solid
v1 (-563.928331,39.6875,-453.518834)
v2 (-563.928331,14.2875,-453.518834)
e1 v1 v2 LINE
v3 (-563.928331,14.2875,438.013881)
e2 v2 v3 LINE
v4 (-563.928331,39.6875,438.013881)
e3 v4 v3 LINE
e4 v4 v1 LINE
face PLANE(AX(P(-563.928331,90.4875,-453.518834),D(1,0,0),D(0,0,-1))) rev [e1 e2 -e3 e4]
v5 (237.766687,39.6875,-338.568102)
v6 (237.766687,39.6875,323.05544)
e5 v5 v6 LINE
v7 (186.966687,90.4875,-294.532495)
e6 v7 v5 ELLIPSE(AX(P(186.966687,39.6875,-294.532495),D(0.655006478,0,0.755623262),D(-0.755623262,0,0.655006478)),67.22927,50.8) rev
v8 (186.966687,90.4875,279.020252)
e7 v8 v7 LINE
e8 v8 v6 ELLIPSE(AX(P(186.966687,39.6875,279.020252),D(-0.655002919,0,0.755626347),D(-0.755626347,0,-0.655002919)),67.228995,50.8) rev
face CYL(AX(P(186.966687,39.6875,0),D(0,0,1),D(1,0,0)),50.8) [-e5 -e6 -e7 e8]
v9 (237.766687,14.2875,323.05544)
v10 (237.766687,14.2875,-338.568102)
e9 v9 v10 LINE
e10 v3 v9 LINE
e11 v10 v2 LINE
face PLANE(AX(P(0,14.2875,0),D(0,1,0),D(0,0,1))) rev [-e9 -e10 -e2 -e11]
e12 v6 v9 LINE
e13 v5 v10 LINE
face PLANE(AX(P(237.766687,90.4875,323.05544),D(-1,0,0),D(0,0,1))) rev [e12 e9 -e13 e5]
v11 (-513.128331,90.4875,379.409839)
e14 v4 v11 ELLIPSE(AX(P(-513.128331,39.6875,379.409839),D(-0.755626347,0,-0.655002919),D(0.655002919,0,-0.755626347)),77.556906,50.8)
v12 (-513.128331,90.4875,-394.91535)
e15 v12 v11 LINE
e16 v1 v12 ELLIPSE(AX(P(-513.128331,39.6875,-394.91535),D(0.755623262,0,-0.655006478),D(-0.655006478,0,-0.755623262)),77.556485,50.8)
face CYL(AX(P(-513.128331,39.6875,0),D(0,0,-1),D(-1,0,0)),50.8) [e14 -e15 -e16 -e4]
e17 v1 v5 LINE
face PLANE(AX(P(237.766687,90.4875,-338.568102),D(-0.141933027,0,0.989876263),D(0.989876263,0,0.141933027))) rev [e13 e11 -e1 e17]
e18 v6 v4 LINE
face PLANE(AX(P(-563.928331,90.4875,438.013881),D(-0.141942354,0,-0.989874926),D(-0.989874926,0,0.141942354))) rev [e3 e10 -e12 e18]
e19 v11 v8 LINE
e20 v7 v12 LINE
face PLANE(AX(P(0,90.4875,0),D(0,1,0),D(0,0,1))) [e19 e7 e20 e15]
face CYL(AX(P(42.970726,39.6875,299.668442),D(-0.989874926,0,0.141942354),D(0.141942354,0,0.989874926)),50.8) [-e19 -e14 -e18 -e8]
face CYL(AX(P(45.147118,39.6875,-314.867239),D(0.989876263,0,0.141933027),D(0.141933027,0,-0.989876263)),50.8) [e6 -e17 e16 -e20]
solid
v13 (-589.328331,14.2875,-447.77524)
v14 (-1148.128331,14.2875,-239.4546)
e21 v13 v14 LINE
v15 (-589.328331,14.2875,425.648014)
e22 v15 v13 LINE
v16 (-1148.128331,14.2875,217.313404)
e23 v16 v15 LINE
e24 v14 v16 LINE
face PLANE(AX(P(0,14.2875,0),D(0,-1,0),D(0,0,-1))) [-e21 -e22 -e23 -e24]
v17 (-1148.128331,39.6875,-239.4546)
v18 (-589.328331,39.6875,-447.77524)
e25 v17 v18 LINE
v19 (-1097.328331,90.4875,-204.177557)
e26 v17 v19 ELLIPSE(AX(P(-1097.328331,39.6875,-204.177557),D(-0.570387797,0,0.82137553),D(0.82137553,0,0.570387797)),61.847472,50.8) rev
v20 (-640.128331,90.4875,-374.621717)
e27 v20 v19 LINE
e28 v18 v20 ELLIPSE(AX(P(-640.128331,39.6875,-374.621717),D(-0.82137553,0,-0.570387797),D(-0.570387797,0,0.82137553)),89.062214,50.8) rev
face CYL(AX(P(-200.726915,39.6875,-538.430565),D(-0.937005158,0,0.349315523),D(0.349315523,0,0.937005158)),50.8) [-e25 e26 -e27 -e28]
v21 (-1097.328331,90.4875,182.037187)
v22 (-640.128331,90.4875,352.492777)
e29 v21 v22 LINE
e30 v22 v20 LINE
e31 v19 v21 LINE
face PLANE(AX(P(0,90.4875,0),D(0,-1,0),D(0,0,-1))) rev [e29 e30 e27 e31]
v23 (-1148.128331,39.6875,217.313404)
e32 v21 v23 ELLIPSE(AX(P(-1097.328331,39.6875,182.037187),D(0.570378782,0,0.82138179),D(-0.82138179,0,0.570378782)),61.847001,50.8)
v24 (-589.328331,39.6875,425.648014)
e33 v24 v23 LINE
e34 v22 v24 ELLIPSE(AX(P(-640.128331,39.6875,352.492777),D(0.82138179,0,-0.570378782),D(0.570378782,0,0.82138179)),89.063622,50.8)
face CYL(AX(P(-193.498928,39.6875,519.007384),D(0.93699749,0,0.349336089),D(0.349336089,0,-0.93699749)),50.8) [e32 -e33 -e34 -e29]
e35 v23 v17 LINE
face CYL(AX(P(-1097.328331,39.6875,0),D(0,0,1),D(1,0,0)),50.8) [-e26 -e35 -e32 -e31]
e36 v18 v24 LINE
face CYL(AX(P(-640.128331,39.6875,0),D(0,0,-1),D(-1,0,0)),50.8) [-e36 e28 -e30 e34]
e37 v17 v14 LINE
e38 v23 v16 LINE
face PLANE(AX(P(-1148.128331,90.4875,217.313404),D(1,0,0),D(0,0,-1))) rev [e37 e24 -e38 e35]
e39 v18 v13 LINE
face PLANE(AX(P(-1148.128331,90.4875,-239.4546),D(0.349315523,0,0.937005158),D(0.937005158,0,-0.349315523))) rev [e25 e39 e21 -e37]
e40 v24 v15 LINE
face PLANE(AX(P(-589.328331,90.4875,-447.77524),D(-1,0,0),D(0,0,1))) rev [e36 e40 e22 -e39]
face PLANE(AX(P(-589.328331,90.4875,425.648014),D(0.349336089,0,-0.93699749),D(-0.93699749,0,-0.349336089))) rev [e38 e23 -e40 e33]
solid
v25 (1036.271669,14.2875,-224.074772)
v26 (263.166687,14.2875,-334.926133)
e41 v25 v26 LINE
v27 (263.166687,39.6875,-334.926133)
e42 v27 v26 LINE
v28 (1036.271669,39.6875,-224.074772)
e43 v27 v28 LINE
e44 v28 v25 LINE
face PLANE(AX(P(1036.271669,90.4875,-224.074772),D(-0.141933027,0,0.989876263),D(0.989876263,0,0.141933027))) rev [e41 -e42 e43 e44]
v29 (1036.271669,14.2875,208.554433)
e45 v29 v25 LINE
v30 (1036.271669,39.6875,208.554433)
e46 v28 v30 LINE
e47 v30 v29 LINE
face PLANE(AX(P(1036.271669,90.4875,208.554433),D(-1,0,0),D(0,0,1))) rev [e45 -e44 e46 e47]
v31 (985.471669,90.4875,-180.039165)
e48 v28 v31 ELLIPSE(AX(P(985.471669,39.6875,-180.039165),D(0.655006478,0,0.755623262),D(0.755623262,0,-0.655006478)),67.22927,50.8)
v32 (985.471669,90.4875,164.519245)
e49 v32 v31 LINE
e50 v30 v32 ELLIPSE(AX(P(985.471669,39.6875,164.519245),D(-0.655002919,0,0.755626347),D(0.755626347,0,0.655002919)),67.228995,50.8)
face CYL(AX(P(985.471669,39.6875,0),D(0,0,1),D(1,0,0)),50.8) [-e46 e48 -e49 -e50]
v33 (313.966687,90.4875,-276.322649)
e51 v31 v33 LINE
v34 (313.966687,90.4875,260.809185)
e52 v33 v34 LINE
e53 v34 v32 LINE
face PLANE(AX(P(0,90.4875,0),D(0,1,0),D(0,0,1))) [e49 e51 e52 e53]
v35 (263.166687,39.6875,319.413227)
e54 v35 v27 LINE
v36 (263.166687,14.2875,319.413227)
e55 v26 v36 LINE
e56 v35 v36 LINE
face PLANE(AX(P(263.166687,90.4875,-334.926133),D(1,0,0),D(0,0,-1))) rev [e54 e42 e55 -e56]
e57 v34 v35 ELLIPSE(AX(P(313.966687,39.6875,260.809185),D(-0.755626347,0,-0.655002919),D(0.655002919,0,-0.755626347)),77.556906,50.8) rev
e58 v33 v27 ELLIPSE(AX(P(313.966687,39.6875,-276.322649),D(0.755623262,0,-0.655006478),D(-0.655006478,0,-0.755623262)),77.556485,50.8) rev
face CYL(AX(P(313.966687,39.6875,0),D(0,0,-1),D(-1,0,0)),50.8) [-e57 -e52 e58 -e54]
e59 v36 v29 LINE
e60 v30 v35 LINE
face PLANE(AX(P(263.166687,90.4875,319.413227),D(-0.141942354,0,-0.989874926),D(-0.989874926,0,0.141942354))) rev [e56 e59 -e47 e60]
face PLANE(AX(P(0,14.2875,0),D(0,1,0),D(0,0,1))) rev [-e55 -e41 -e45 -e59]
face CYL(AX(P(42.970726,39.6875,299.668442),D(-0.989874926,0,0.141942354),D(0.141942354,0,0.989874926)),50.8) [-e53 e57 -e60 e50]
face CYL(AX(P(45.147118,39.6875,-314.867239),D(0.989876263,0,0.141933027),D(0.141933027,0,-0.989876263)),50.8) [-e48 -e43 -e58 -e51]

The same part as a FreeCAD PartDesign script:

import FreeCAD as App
import Part
import Sketcher
from FreeCAD import Vector
Q = App.Units.Quantity


def edges_at(feature, points):
    """Names of the edges that pass closest to the given points."""
    edges = feature.Shape.Edges
    near = lambda p: min(range(len(edges)), key=lambda i: edges[i].distToShape(Part.Vertex(*p))[0])
    return sorted({f"Edge{near(p) + 1}" for p in points})

doc = App.newDocument("Part")
params = doc.addObject("Spreadsheet::Sheet", "Params")
for row, (alias, value) in enumerate([
    ("pad1_length", "3 in"),
    ("fillet_radius", "2 in"),
    ("pad2_length", "3 in"),
    ("fillet2_radius", "2 in"),
    ("pad3_length", "3 in"),
    ("fillet3_radius", "2 in"),
], start=1):
    params.set(f"A{row}", alias)
    params.set(f"B{row}", "=" + value)
    params.setAlias(f"B{row}", alias)

body = doc.addObject("PartDesign::Body", "Body")

# Sketch on XZ plane
sketch1 = doc.addObject("Sketcher::SketchObject", "Sketch")
body.addObject(sketch1)
sketch1.AttachmentSupport = (doc.XZ_Plane, [""])
sketch1.MapMode = "FlatFace"
sketch1.AttachmentOffset = App.Placement(Vector(0, 0, -0.5625 * 25.4), App.Rotation())
sketch1.addGeometry(Part.LineSegment(Vector(-589.328331, -447.77524, 0), Vector(-1148.128331, -239.4546, 0)), False)
sketch1.addGeometry(Part.LineSegment(Vector(-1148.128331, -239.4546, 0), Vector(-1148.128331, 217.313404, 0)), False)
sketch1.addGeometry(Part.LineSegment(Vector(-1148.128331, 217.313404, 0), Vector(-589.328331, 425.648014, 0)), False)
sketch1.addGeometry(Part.LineSegment(Vector(-589.328331, 425.648014, 0), Vector(-589.328331, -447.77524, 0)), False)
sketch1.addConstraint(Sketcher.Constraint("Coincident", 0, 2, 1, 1))
sketch1.addConstraint(Sketcher.Constraint("Coincident", 1, 2, 2, 1))
sketch1.addConstraint(Sketcher.Constraint("Coincident", 2, 2, 3, 1))
sketch1.addConstraint(Sketcher.Constraint("Coincident", 3, 2, 0, 1))
sketch1.addConstraint(Sketcher.Constraint("Vertical", 1))
sketch1.addConstraint(Sketcher.Constraint("Vertical", 3))
sketch1.addConstraint(Sketcher.Constraint("DistanceX", 1, 2, 2, 2, Q("22 in")))
sketch1.addConstraint(Sketcher.Constraint("DistanceY", 3, 2, 0, 2, Q("8.2016 in")))
sketch1.addConstraint(Sketcher.Constraint("DistanceY", 0, 2, -1, 1, 239.4546))
sketch1.addConstraint(Sketcher.Constraint("DistanceY", 1, 1, 1, 2, 456.768004))
sketch1.addConstraint(Sketcher.Constraint("DistanceY", 3, 2, 3, 1, 873.423254))
sketch1.addConstraint(Sketcher.Constraint("DistanceX", 0, 2, -1, 1, 1148.128331))
pad1 = doc.addObject("PartDesign::Pad", "Pad")
body.addObject(pad1)
pad1.Profile = sketch1
pad1.setExpression("Length", "Params.pad1_length")
pad1.Reversed = True
doc.recompute()

fillet = doc.addObject("PartDesign::Fillet", "Fillet")
body.addObject(fillet)
fillet.Base = (pad1, edges_at(pad1, [
    (-589.328, 90.487, -11.064),
    (-868.728, 90.487, -343.615),
    (-1148.128, 90.487, -11.071),
    (-868.728, 90.487, 321.481),
]))
fillet.setExpression("Radius", "Params.fillet_radius")
body2 = doc.addObject("PartDesign::Body", "Body001")

# Sketch on XZ plane
sketch2 = doc.addObject("Sketcher::SketchObject", "Sketch001")
body2.addObject(sketch2)
sketch2.AttachmentSupport = (doc.getObject("XZ_Plane001"), [""])
sketch2.MapMode = "FlatFace"
sketch2.AttachmentOffset = App.Placement(Vector(0, 0, -0.5625 * 25.4), App.Rotation())
sketch2.addGeometry(Part.LineSegment(Vector(-563.928331, -453.518834, 0), Vector(-563.928331, 438.013881, 0)), False)
sketch2.addGeometry(Part.LineSegment(Vector(-563.928331, 438.013881, 0), Vector(237.766687, 323.05544, 0)), False)
sketch2.addGeometry(Part.LineSegment(Vector(237.766687, 323.05544, 0), Vector(237.766687, -338.568102, 0)), False)
sketch2.addGeometry(Part.LineSegment(Vector(237.766687, -338.568102, 0), Vector(-563.928331, -453.518834, 0)), False)
sketch2.addConstraint(Sketcher.Constraint("Coincident", 0, 2, 1, 1))
sketch2.addConstraint(Sketcher.Constraint("Coincident", 1, 2, 2, 1))
sketch2.addConstraint(Sketcher.Constraint("Coincident", 2, 2, 3, 1))
sketch2.addConstraint(Sketcher.Constraint("Coincident", 3, 2, 0, 1))
sketch2.addConstraint(Sketcher.Constraint("Vertical", 0))
sketch2.addConstraint(Sketcher.Constraint("Vertical", 2))
sketch2.addConstraint(Sketcher.Constraint("DistanceY", 0, 1, 0, 2, 891.532714))
sketch2.addConstraint(Sketcher.Constraint("DistanceY", 2, 2, 2, 1, 661.623542))
sketch2.addConstraint(Sketcher.Constraint("DistanceX", 0, 2, -1, 1, 563.928331))
sketch2.addConstraint(Sketcher.Constraint("DistanceY", -1, 1, 0, 2, 438.013881))
sketch2.addConstraint(Sketcher.Constraint("DistanceY", -1, 1, 1, 2, 323.05544))
sketch2.addConstraint(Sketcher.Constraint("Distance", 1, 809.895268))
pad2 = doc.addObject("PartDesign::Pad", "Pad001")
body2.addObject(pad2)
pad2.Profile = sketch2
pad2.setExpression("Length", "Params.pad2_length")
pad2.Reversed = True
doc.recompute()

fillet2 = doc.addObject("PartDesign::Fillet", "Fillet001")
body2.addObject(fillet2)
fillet2.Base = (pad2, edges_at(pad2, [
    (-163.081, 90.487, 380.535),
    (237.767, 90.487, -7.756),
    (-163.081, 90.487, -396.043),
    (-563.928, 90.487, -7.752),
]))
fillet2.setExpression("Radius", "Params.fillet2_radius")
body3 = doc.addObject("PartDesign::Body", "Body002")

# Sketch on XZ plane
sketch3 = doc.addObject("Sketcher::SketchObject", "Sketch002")
body3.addObject(sketch3)
sketch3.AttachmentSupport = (doc.getObject("XZ_Plane002"), [""])
sketch3.MapMode = "FlatFace"
sketch3.AttachmentOffset = App.Placement(Vector(0, 0, -0.5625 * 25.4), App.Rotation())
sketch3.addGeometry(Part.LineSegment(Vector(263.166687, -334.926133, 0), Vector(263.166687, 319.413227, 0)), False)
sketch3.addGeometry(Part.LineSegment(Vector(263.166687, 319.413227, 0), Vector(1036.271669, 208.554433, 0)), False)
sketch3.addGeometry(Part.LineSegment(Vector(1036.271669, 208.554433, 0), Vector(1036.271669, -224.074772, 0)), False)
sketch3.addGeometry(Part.LineSegment(Vector(1036.271669, -224.074772, 0), Vector(263.166687, -334.926133, 0)), False)
sketch3.addConstraint(Sketcher.Constraint("Coincident", 0, 2, 1, 1))
sketch3.addConstraint(Sketcher.Constraint("Coincident", 1, 2, 2, 1))
sketch3.addConstraint(Sketcher.Constraint("Coincident", 2, 2, 3, 1))
sketch3.addConstraint(Sketcher.Constraint("Coincident", 3, 2, 0, 1))
sketch3.addConstraint(Sketcher.Constraint("Vertical", 0))
sketch3.addConstraint(Sketcher.Constraint("Vertical", 2))
sketch3.addConstraint(Sketcher.Constraint("DistanceY", 0, 1, 0, 2, 654.33936))
sketch3.addConstraint(Sketcher.Constraint("DistanceY", 2, 2, 0, 2, 543.487999))
sketch3.addConstraint(Sketcher.Constraint("Distance", 3, 781.01174))
sketch3.addConstraint(Sketcher.Constraint("DistanceY", 2, 2, 2, 1, 432.629205))
sketch3.addConstraint(Sketcher.Constraint("DistanceX", -1, 1, 1, 2, 1036.271669))
sketch3.addConstraint(Sketcher.Constraint("DistanceY", -1, 1, 0, 2, 319.413227))
pad3 = doc.addObject("PartDesign::Pad", "Pad002")
body3.addObject(pad3)
pad3.Profile = sketch3
pad3.setExpression("Length", "Params.pad3_length")
pad3.Reversed = True
doc.recompute()

fillet3 = doc.addObject("PartDesign::Fillet", "Fillet002")
body3.addObject(fillet3)
fillet3.Base = (pad3, edges_at(pad3, [
    (649.719, 90.487, 263.984),
    (1036.272, 90.487, -7.76),
    (649.719, 90.487, -279.5),
    (263.167, 90.487, -7.756),
]))
fillet3.setExpression("Radius", "Params.fillet3_radius")

doc.recompute()
